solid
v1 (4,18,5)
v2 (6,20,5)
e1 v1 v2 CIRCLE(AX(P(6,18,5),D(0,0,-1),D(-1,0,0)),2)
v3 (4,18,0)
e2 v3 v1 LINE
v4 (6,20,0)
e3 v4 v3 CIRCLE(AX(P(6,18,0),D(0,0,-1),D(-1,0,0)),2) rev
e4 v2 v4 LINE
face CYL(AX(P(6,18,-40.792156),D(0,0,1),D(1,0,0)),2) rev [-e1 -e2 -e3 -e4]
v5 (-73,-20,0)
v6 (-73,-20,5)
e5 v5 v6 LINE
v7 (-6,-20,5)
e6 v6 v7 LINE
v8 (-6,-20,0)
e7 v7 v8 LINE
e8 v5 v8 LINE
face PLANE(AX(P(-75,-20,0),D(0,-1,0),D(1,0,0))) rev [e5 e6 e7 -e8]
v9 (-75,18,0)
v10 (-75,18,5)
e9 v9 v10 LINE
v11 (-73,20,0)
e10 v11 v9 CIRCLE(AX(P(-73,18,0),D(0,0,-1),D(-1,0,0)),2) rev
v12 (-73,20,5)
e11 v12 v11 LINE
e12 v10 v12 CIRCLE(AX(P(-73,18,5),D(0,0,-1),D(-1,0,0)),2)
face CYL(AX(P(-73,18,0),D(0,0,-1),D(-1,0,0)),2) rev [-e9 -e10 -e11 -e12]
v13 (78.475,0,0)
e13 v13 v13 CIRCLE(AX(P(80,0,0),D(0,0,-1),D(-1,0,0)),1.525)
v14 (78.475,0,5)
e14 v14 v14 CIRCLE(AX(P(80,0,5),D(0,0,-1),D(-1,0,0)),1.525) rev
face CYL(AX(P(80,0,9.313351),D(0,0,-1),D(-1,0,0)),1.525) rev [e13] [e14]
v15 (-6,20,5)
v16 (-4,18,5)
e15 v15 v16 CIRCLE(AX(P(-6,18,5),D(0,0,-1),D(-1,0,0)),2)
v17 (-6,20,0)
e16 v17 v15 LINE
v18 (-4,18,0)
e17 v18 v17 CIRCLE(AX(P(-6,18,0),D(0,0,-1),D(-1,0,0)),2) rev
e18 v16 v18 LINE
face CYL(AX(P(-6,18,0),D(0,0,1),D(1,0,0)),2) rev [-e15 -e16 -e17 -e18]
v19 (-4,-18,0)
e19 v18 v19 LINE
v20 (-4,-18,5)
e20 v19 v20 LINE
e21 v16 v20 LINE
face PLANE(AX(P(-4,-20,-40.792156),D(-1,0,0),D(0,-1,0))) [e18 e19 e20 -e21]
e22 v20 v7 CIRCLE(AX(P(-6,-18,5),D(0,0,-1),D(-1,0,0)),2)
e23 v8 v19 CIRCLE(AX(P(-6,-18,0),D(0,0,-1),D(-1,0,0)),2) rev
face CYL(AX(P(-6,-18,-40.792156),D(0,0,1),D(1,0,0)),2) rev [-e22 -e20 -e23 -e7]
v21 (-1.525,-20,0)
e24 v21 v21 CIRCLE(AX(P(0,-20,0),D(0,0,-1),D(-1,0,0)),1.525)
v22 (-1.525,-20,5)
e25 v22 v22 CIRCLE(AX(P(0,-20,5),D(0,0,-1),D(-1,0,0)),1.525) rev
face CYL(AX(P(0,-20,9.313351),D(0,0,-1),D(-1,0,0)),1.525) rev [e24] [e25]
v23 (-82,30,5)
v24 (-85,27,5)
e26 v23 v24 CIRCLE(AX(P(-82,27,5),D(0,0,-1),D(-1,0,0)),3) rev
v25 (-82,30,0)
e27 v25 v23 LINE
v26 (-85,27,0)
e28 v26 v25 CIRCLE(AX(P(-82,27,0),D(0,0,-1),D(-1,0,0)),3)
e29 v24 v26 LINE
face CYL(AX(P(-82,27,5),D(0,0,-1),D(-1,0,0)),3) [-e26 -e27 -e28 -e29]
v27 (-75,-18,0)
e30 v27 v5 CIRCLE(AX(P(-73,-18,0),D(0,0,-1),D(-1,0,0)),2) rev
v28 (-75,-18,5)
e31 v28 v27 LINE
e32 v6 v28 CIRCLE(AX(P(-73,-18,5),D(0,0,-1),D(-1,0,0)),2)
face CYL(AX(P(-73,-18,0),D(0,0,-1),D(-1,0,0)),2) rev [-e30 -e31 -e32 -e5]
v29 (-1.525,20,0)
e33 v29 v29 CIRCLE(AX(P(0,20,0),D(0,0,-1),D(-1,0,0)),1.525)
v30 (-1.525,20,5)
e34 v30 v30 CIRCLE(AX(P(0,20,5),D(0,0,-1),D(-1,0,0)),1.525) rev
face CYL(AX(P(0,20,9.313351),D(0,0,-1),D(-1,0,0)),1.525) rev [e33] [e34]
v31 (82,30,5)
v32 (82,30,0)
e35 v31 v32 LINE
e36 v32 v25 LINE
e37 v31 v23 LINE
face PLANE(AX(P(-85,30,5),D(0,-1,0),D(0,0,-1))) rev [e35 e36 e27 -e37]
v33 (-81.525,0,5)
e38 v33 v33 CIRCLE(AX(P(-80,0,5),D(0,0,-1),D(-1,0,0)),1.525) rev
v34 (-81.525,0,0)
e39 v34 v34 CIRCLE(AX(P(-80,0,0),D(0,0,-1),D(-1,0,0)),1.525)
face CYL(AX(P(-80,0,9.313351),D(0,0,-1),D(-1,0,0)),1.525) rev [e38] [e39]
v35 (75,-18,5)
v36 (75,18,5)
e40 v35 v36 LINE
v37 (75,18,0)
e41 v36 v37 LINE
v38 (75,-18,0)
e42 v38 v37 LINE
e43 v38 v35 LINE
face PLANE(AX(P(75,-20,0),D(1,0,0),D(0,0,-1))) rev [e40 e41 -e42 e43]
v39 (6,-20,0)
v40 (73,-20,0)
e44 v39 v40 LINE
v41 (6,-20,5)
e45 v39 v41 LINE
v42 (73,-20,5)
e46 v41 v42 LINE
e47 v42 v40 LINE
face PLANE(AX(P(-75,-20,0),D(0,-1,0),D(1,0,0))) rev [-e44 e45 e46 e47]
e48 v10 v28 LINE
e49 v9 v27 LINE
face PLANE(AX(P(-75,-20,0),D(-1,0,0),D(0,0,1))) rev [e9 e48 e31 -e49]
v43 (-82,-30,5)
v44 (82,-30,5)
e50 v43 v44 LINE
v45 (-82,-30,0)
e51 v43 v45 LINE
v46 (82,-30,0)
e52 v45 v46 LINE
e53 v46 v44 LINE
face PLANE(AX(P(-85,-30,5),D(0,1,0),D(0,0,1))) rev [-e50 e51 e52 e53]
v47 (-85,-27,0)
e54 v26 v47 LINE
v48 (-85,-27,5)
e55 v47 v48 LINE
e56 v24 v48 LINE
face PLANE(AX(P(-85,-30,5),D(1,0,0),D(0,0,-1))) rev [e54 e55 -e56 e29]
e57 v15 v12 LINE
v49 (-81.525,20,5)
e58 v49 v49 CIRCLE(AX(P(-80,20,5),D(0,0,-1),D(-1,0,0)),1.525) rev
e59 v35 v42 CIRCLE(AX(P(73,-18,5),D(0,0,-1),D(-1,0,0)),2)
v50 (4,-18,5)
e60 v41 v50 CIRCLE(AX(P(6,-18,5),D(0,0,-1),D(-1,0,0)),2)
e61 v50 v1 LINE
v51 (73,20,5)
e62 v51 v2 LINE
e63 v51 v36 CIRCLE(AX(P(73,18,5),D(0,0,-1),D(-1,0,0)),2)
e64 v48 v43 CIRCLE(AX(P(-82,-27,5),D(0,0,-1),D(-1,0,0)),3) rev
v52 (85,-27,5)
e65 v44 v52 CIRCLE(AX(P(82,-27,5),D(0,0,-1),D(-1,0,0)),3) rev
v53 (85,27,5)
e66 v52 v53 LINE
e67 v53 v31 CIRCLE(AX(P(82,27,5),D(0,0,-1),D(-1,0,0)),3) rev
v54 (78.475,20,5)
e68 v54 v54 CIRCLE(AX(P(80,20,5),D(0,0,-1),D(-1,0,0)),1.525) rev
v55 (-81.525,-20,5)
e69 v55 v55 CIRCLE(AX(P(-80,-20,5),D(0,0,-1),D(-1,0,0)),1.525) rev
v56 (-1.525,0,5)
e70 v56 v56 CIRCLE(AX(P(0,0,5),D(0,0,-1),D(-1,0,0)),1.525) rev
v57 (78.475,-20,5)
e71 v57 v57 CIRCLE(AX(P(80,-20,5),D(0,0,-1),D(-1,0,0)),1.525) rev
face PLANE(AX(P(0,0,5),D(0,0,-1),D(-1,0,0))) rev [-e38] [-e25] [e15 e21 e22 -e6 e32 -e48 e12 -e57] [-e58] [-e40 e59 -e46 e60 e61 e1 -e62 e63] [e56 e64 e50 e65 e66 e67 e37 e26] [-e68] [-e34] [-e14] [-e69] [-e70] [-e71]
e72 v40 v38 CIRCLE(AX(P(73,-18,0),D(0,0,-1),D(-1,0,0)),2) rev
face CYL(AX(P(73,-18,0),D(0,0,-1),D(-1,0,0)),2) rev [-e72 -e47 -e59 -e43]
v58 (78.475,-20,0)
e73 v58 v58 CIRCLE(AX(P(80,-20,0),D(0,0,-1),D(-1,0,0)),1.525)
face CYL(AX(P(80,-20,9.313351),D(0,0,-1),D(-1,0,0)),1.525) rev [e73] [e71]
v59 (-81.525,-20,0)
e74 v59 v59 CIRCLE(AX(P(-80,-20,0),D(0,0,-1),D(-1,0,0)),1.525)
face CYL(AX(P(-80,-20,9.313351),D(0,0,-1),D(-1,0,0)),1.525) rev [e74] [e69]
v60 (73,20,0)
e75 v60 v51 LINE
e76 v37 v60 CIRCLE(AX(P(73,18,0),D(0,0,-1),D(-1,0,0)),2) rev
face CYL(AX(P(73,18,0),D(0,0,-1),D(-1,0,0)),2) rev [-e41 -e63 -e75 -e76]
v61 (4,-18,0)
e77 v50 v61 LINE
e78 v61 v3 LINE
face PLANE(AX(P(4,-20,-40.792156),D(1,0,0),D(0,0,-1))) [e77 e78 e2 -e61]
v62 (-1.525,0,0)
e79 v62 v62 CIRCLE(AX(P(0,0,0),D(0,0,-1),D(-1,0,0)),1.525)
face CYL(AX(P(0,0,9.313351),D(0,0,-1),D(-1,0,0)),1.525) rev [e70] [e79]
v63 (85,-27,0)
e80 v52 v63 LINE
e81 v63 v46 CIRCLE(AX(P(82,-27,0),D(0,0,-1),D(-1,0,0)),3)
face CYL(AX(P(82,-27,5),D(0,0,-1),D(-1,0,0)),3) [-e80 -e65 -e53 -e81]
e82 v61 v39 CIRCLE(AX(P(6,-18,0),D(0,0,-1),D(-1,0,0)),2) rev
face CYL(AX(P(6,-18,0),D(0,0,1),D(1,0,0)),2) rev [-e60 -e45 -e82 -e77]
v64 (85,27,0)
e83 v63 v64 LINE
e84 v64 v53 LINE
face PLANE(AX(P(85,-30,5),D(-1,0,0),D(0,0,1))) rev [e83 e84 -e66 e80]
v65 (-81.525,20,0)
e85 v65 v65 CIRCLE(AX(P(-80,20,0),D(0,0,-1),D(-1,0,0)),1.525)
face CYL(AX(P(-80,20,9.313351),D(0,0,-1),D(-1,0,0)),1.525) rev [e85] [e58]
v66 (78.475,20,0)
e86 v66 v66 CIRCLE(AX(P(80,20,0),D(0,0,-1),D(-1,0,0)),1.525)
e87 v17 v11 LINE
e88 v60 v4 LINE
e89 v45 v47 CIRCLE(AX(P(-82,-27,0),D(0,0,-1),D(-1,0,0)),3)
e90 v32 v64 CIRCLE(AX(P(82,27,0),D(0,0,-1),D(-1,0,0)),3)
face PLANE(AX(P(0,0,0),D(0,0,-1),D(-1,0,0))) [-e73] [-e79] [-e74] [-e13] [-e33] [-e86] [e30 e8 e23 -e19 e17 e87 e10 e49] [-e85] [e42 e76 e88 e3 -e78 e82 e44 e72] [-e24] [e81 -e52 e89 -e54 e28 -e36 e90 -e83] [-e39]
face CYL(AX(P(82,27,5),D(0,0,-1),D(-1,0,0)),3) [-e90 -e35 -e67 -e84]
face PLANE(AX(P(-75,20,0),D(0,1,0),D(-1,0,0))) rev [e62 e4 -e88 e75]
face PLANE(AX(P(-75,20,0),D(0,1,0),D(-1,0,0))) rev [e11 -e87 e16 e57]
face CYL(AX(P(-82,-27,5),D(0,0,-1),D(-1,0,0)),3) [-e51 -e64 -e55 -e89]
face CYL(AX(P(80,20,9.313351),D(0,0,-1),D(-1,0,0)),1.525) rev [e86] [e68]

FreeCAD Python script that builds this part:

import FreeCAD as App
import Part
import Sketcher

V = App.Vector
Q = App.Units.Quantity


def edges_at(feature, points):
    """Names of the edges that pass closest to the given points."""
    edges = feature.Shape.Edges
    near = lambda p: min(range(len(edges)), key=lambda i: edges[i].distToShape(Part.Vertex(*p))[0])
    return sorted({f"Edge{near(p) + 1}" for p in points})

doc = App.newDocument("Part")
body = doc.addObject("PartDesign::Body", "Body")

sketch1 = doc.addObject("Sketcher::SketchObject", "Sketch")
body.addObject(sketch1)
sketch1.AttachmentSupport = (doc.XY_Plane, [""])
sketch1.MapMode = "FlatFace"
sketch1.addGeometry([
    Part.LineSegment(V(-85, 30, 0), V(-85, -30, 0)),
    Part.LineSegment(V(-85, -30, 0), V(85, -30, 0)),
    Part.LineSegment(V(85, -30, 0), V(85, 30, 0)),
    Part.LineSegment(V(85, 30, 0), V(-85, 30, 0)),
], False)
sketch1.addConstraint([
    Sketcher.Constraint("Coincident", 0, 2, 1, 1),
    Sketcher.Constraint("Coincident", 1, 2, 2, 1),
    Sketcher.Constraint("Coincident", 2, 2, 3, 1),
    Sketcher.Constraint("Coincident", 3, 2, 0, 1),
    Sketcher.Constraint("Vertical", 0),
    Sketcher.Constraint("Horizontal", 1),
    Sketcher.Constraint("Vertical", 2),
    Sketcher.Constraint("Horizontal", 3),
    Sketcher.Constraint("Symmetric", 0, 2, 2, 2, -1, 1),
    Sketcher.Constraint("DistanceX", 1, 1, 1, 2, Q("170 mm")),
    Sketcher.Constraint("DistanceY", 0, 2, 0, 1, Q("60 mm")),
])
pad1 = doc.addObject("PartDesign::Pad", "Pad")
body.addObject(pad1)
pad1.Profile = sketch1
pad1.Length = 5

sketch2 = doc.addObject("Sketcher::SketchObject", "Sketch001")
body.addObject(sketch2)
sketch2.AttachmentSupport = (doc.XY_Plane, [""])
sketch2.MapMode = "FlatFace"
sketch2.AttachmentOffset = App.Placement(V(0, 0, 5), App.Rotation())
sketch2.addGeometry([
    Part.LineSegment(V(-75, 20, 0), V(-75, -20, 0)),
    Part.LineSegment(V(-75, -20, 0), V(75, -20, 0)),
    Part.LineSegment(V(75, -20, 0), V(75, 20, 0)),
    Part.LineSegment(V(75, 20, 0), V(-75, 20, 0)),
], False)
sketch2.addConstraint([
    Sketcher.Constraint("Coincident", 0, 2, 1, 1),
    Sketcher.Constraint("Coincident", 1, 2, 2, 1),
    Sketcher.Constraint("Coincident", 2, 2, 3, 1),
    Sketcher.Constraint("Coincident", 3, 2, 0, 1),
    Sketcher.Constraint("Vertical", 0),
    Sketcher.Constraint("Horizontal", 1),
    Sketcher.Constraint("Vertical", 2),
    Sketcher.Constraint("Horizontal", 3),
    Sketcher.Constraint("Symmetric", 0, 2, 2, 2, -1, 1),
    Sketcher.Constraint("DistanceX", 1, 1, 1, 2, Q("150 mm")),
    Sketcher.Constraint("DistanceY", 0, 2, 0, 1, Q("40 mm")),
])
pocket1 = doc.addObject("PartDesign::Pocket", "Pocket")
body.addObject(pocket1)
pocket1.Profile = sketch2
pocket1.Length = 5

sketch3 = doc.addObject("Sketcher::SketchObject", "Sketch002")
body.addObject(sketch3)
sketch3.AttachmentSupport = (doc.XY_Plane, [""])
sketch3.MapMode = "FlatFace"
sketch3.AttachmentOffset = App.Placement(V(0, 0, 5), App.Rotation())
sketch3.addGeometry([
    Part.LineSegment(V(-4, 20, 0), V(-4, -20, 0)),
    Part.LineSegment(V(-4, -20, 0), V(4, -20, 0)),
    Part.LineSegment(V(4, -20, 0), V(4, 20, 0)),
    Part.LineSegment(V(4, 20, 0), V(-4, 20, 0)),
], False)
sketch3.addConstraint([
    Sketcher.Constraint("Coincident", 0, 2, 1, 1),
    Sketcher.Constraint("Coincident", 1, 2, 2, 1),
    Sketcher.Constraint("Coincident", 2, 2, 3, 1),
    Sketcher.Constraint("Coincident", 3, 2, 0, 1),
    Sketcher.Constraint("Vertical", 0),
    Sketcher.Constraint("Horizontal", 1),
    Sketcher.Constraint("Vertical", 2),
    Sketcher.Constraint("Horizontal", 3),
    Sketcher.Constraint("Symmetric", 0, 2, 2, 2, -1, 1),
    Sketcher.Constraint("DistanceX", 1, 1, 1, 2, Q("8 mm")),
    Sketcher.Constraint("DistanceY", 0, 2, 0, 1, Q("40 mm")),
])
pad2 = doc.addObject("PartDesign::Pad", "Pad001")
body.addObject(pad2)
pad2.Profile = sketch3
pad2.Length = 5
pad2.Reversed = True
doc.recompute()

fillet = doc.addObject("PartDesign::Fillet", "Fillet")
body.addObject(fillet)
fillet.Base = (pad2, edges_at(pad2, [
    (85, -30, 2.5),
    (-85, -30, 2.5),
    (-85, 30, 2.5),
    (85, 30, 2.5),
]))
fillet.Radius = 3
doc.recompute()

fillet2 = doc.addObject("PartDesign::Fillet", "Fillet001")
body.addObject(fillet2)
fillet2.Base = (fillet, edges_at(fillet, [
    (75, 20, 2.5),
    (75, -20, 2.5),
    (-75, -20, 2.5),
    (-75, 20, 2.5),
    (-4, 20, 2.5),
    (-4, -20, 2.5),
    (4, -20, 2.5),
    (4, 20, 2.5),
]))
fillet2.Radius = 2

sketch4 = doc.addObject("Sketcher::SketchObject", "Sketch003")
body.addObject(sketch4)
sketch4.AttachmentSupport = (doc.XY_Plane, [""])
sketch4.MapMode = "FlatFace"
sketch4.addGeometry([
    Part.Circle(V(-80, 20, 0), V(0, 0, 1), 1.525),
    Part.Circle(V(-80, 0, 0), V(0, 0, 1), 1.525),
    Part.Circle(V(0, -20, 0), V(0, 0, 1), 1.525),
    Part.Circle(V(0, 20, 0), V(0, 0, 1), 1.525),
    Part.Circle(V(80, 20, 0), V(0, 0, 1), 1.525),
    Part.Circle(V(80, 0, 0), V(0, 0, 1), 1.525),
    Part.Circle(V(80, -20, 0), V(0, 0, 1), 1.525),
    Part.Circle(V(0, 0, 0), V(0, 0, 1), 1.525),
    Part.Circle(V(-80, -20, 0), V(0, 0, 1), 1.525),
], False)
sketch4.addConstraint([
    Sketcher.Constraint("Coincident", 7, 3, -1, 1),
    Sketcher.Constraint("Equal", 0, 1),
    Sketcher.Constraint("Equal", 1, 2),
    Sketcher.Constraint("Equal", 2, 3),
    Sketcher.Constraint("Equal", 3, 4),
    Sketcher.Constraint("Equal", 4, 5),
    Sketcher.Constraint("Equal", 5, 6),
    Sketcher.Constraint("Equal", 6, 7),
    Sketcher.Constraint("Equal", 7, 8),
    Sketcher.Constraint("Symmetric", 2, 3, 3, 3, -1, 1),
    Sketcher.Constraint("Symmetric", 1, 3, 5, 3, -1, 1),
    Sketcher.Constraint("Symmetric", 0, 3, 6, 3, -1, 1),
    Sketcher.Constraint("Symmetric", 4, 3, 8, 3, -1, 1),
    Sketcher.Constraint("Symmetric", 0, 3, 4, 3, -2),
    Sketcher.Constraint("PointOnObject", 1, 3, -1),
    Sketcher.Constraint("PointOnObject", 2, 3, -2),
    Sketcher.Constraint("Horizontal", 0, 3, 3, 3),
    Sketcher.Constraint("Vertical", 0, 3, 1, 3),
    Sketcher.Constraint("Diameter", 0, Q("3.05 mm")),
    Sketcher.Constraint("DistanceX", 0, 3, -1, 1, Q("80 mm")),
    Sketcher.Constraint("DistanceY", -1, 1, 0, 3, Q("20 mm")),
])
pocket2 = doc.addObject("PartDesign::Pocket", "Pocket001")
body.addObject(pocket2)
pocket2.Profile = sketch4
pocket2.Length = 5
pocket2.Reversed = True

doc.recompute()
